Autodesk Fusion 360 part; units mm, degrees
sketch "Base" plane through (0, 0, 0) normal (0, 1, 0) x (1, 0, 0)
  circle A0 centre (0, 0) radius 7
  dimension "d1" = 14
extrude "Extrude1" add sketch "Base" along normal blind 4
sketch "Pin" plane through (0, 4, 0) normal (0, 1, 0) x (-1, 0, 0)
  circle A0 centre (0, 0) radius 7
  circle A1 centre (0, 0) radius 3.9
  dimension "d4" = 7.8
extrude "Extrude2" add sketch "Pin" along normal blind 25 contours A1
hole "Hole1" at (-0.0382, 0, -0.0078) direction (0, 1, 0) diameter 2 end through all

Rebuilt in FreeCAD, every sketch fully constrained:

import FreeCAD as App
import Part
import Sketcher

doc = App.newDocument("Part")
body = doc.addObject("PartDesign::Body", "Body")

# Sketch on XZ plane
sketch1 = doc.addObject("Sketcher::SketchObject", "Sketch")
body.addObject(sketch1)
sketch1.AttachmentSupport = (doc.XZ_Plane, [""])
sketch1.MapMode = "FlatFace"
sketch1.addGeometry(Part.Circle(App.Vector(0, 0, 0), App.Vector(0, 0, 1), 7), False)
sketch1.addConstraint([
    Sketcher.Constraint("Coincident", 0, 3, -1, 1),
    Sketcher.Constraint("Diameter", 0, 14.0),
])
pad1 = doc.addObject("PartDesign::Pad", "Pad")
body.addObject(pad1)
pad1.Profile = sketch1
pad1.Length = 4
pad1.Reversed = True

# Sketch on XZ plane
sketch2 = doc.addObject("Sketcher::SketchObject", "Sketch001")
body.addObject(sketch2)
sketch2.AttachmentSupport = (doc.XZ_Plane, [""])
sketch2.MapMode = "FlatFace"
sketch2.AttachmentOffset = App.Placement(App.Vector(0, 0, -4), App.Rotation())
sketch2.addGeometry(Part.Circle(App.Vector(0, 0, 0), App.Vector(0, 0, 1), 3.9), False)
sketch2.addConstraint([
    Sketcher.Constraint("Coincident", 0, 3, -1, 1),
    Sketcher.Constraint("Diameter", 0, 7.8),
])
pad2 = doc.addObject("PartDesign::Pad", "Pad001")
body.addObject(pad2)
pad2.Profile = sketch2
pad2.Length = 25
pad2.Reversed = True

# Sketch on XZ plane
sketch3 = doc.addObject("Sketcher::SketchObject", "Sketch002")
body.addObject(sketch3)
sketch3.AttachmentSupport = (doc.XZ_Plane, [""])
sketch3.MapMode = "FlatFace"
sketch3.addGeometry(Part.Circle(App.Vector(-0.0382, -0.0078, 0), App.Vector(0, 0, 1), 1), False)
sketch3.addConstraint([
    Sketcher.Constraint("Diameter", 0, 2.0),
    Sketcher.Constraint("DistanceX", 0, 3, -1, 1, 0.0382),
    Sketcher.Constraint("DistanceY", 0, 3, -1, 1, 0.0078),
])
doc.recompute()
hole = doc.addObject("PartDesign::Hole", "Hole")
body.addObject(hole)
hole.Profile = sketch3
hole.ThreadType = "None"
hole.Diameter = 2
hole.DepthType = "ThroughAll"

doc.recompute()
